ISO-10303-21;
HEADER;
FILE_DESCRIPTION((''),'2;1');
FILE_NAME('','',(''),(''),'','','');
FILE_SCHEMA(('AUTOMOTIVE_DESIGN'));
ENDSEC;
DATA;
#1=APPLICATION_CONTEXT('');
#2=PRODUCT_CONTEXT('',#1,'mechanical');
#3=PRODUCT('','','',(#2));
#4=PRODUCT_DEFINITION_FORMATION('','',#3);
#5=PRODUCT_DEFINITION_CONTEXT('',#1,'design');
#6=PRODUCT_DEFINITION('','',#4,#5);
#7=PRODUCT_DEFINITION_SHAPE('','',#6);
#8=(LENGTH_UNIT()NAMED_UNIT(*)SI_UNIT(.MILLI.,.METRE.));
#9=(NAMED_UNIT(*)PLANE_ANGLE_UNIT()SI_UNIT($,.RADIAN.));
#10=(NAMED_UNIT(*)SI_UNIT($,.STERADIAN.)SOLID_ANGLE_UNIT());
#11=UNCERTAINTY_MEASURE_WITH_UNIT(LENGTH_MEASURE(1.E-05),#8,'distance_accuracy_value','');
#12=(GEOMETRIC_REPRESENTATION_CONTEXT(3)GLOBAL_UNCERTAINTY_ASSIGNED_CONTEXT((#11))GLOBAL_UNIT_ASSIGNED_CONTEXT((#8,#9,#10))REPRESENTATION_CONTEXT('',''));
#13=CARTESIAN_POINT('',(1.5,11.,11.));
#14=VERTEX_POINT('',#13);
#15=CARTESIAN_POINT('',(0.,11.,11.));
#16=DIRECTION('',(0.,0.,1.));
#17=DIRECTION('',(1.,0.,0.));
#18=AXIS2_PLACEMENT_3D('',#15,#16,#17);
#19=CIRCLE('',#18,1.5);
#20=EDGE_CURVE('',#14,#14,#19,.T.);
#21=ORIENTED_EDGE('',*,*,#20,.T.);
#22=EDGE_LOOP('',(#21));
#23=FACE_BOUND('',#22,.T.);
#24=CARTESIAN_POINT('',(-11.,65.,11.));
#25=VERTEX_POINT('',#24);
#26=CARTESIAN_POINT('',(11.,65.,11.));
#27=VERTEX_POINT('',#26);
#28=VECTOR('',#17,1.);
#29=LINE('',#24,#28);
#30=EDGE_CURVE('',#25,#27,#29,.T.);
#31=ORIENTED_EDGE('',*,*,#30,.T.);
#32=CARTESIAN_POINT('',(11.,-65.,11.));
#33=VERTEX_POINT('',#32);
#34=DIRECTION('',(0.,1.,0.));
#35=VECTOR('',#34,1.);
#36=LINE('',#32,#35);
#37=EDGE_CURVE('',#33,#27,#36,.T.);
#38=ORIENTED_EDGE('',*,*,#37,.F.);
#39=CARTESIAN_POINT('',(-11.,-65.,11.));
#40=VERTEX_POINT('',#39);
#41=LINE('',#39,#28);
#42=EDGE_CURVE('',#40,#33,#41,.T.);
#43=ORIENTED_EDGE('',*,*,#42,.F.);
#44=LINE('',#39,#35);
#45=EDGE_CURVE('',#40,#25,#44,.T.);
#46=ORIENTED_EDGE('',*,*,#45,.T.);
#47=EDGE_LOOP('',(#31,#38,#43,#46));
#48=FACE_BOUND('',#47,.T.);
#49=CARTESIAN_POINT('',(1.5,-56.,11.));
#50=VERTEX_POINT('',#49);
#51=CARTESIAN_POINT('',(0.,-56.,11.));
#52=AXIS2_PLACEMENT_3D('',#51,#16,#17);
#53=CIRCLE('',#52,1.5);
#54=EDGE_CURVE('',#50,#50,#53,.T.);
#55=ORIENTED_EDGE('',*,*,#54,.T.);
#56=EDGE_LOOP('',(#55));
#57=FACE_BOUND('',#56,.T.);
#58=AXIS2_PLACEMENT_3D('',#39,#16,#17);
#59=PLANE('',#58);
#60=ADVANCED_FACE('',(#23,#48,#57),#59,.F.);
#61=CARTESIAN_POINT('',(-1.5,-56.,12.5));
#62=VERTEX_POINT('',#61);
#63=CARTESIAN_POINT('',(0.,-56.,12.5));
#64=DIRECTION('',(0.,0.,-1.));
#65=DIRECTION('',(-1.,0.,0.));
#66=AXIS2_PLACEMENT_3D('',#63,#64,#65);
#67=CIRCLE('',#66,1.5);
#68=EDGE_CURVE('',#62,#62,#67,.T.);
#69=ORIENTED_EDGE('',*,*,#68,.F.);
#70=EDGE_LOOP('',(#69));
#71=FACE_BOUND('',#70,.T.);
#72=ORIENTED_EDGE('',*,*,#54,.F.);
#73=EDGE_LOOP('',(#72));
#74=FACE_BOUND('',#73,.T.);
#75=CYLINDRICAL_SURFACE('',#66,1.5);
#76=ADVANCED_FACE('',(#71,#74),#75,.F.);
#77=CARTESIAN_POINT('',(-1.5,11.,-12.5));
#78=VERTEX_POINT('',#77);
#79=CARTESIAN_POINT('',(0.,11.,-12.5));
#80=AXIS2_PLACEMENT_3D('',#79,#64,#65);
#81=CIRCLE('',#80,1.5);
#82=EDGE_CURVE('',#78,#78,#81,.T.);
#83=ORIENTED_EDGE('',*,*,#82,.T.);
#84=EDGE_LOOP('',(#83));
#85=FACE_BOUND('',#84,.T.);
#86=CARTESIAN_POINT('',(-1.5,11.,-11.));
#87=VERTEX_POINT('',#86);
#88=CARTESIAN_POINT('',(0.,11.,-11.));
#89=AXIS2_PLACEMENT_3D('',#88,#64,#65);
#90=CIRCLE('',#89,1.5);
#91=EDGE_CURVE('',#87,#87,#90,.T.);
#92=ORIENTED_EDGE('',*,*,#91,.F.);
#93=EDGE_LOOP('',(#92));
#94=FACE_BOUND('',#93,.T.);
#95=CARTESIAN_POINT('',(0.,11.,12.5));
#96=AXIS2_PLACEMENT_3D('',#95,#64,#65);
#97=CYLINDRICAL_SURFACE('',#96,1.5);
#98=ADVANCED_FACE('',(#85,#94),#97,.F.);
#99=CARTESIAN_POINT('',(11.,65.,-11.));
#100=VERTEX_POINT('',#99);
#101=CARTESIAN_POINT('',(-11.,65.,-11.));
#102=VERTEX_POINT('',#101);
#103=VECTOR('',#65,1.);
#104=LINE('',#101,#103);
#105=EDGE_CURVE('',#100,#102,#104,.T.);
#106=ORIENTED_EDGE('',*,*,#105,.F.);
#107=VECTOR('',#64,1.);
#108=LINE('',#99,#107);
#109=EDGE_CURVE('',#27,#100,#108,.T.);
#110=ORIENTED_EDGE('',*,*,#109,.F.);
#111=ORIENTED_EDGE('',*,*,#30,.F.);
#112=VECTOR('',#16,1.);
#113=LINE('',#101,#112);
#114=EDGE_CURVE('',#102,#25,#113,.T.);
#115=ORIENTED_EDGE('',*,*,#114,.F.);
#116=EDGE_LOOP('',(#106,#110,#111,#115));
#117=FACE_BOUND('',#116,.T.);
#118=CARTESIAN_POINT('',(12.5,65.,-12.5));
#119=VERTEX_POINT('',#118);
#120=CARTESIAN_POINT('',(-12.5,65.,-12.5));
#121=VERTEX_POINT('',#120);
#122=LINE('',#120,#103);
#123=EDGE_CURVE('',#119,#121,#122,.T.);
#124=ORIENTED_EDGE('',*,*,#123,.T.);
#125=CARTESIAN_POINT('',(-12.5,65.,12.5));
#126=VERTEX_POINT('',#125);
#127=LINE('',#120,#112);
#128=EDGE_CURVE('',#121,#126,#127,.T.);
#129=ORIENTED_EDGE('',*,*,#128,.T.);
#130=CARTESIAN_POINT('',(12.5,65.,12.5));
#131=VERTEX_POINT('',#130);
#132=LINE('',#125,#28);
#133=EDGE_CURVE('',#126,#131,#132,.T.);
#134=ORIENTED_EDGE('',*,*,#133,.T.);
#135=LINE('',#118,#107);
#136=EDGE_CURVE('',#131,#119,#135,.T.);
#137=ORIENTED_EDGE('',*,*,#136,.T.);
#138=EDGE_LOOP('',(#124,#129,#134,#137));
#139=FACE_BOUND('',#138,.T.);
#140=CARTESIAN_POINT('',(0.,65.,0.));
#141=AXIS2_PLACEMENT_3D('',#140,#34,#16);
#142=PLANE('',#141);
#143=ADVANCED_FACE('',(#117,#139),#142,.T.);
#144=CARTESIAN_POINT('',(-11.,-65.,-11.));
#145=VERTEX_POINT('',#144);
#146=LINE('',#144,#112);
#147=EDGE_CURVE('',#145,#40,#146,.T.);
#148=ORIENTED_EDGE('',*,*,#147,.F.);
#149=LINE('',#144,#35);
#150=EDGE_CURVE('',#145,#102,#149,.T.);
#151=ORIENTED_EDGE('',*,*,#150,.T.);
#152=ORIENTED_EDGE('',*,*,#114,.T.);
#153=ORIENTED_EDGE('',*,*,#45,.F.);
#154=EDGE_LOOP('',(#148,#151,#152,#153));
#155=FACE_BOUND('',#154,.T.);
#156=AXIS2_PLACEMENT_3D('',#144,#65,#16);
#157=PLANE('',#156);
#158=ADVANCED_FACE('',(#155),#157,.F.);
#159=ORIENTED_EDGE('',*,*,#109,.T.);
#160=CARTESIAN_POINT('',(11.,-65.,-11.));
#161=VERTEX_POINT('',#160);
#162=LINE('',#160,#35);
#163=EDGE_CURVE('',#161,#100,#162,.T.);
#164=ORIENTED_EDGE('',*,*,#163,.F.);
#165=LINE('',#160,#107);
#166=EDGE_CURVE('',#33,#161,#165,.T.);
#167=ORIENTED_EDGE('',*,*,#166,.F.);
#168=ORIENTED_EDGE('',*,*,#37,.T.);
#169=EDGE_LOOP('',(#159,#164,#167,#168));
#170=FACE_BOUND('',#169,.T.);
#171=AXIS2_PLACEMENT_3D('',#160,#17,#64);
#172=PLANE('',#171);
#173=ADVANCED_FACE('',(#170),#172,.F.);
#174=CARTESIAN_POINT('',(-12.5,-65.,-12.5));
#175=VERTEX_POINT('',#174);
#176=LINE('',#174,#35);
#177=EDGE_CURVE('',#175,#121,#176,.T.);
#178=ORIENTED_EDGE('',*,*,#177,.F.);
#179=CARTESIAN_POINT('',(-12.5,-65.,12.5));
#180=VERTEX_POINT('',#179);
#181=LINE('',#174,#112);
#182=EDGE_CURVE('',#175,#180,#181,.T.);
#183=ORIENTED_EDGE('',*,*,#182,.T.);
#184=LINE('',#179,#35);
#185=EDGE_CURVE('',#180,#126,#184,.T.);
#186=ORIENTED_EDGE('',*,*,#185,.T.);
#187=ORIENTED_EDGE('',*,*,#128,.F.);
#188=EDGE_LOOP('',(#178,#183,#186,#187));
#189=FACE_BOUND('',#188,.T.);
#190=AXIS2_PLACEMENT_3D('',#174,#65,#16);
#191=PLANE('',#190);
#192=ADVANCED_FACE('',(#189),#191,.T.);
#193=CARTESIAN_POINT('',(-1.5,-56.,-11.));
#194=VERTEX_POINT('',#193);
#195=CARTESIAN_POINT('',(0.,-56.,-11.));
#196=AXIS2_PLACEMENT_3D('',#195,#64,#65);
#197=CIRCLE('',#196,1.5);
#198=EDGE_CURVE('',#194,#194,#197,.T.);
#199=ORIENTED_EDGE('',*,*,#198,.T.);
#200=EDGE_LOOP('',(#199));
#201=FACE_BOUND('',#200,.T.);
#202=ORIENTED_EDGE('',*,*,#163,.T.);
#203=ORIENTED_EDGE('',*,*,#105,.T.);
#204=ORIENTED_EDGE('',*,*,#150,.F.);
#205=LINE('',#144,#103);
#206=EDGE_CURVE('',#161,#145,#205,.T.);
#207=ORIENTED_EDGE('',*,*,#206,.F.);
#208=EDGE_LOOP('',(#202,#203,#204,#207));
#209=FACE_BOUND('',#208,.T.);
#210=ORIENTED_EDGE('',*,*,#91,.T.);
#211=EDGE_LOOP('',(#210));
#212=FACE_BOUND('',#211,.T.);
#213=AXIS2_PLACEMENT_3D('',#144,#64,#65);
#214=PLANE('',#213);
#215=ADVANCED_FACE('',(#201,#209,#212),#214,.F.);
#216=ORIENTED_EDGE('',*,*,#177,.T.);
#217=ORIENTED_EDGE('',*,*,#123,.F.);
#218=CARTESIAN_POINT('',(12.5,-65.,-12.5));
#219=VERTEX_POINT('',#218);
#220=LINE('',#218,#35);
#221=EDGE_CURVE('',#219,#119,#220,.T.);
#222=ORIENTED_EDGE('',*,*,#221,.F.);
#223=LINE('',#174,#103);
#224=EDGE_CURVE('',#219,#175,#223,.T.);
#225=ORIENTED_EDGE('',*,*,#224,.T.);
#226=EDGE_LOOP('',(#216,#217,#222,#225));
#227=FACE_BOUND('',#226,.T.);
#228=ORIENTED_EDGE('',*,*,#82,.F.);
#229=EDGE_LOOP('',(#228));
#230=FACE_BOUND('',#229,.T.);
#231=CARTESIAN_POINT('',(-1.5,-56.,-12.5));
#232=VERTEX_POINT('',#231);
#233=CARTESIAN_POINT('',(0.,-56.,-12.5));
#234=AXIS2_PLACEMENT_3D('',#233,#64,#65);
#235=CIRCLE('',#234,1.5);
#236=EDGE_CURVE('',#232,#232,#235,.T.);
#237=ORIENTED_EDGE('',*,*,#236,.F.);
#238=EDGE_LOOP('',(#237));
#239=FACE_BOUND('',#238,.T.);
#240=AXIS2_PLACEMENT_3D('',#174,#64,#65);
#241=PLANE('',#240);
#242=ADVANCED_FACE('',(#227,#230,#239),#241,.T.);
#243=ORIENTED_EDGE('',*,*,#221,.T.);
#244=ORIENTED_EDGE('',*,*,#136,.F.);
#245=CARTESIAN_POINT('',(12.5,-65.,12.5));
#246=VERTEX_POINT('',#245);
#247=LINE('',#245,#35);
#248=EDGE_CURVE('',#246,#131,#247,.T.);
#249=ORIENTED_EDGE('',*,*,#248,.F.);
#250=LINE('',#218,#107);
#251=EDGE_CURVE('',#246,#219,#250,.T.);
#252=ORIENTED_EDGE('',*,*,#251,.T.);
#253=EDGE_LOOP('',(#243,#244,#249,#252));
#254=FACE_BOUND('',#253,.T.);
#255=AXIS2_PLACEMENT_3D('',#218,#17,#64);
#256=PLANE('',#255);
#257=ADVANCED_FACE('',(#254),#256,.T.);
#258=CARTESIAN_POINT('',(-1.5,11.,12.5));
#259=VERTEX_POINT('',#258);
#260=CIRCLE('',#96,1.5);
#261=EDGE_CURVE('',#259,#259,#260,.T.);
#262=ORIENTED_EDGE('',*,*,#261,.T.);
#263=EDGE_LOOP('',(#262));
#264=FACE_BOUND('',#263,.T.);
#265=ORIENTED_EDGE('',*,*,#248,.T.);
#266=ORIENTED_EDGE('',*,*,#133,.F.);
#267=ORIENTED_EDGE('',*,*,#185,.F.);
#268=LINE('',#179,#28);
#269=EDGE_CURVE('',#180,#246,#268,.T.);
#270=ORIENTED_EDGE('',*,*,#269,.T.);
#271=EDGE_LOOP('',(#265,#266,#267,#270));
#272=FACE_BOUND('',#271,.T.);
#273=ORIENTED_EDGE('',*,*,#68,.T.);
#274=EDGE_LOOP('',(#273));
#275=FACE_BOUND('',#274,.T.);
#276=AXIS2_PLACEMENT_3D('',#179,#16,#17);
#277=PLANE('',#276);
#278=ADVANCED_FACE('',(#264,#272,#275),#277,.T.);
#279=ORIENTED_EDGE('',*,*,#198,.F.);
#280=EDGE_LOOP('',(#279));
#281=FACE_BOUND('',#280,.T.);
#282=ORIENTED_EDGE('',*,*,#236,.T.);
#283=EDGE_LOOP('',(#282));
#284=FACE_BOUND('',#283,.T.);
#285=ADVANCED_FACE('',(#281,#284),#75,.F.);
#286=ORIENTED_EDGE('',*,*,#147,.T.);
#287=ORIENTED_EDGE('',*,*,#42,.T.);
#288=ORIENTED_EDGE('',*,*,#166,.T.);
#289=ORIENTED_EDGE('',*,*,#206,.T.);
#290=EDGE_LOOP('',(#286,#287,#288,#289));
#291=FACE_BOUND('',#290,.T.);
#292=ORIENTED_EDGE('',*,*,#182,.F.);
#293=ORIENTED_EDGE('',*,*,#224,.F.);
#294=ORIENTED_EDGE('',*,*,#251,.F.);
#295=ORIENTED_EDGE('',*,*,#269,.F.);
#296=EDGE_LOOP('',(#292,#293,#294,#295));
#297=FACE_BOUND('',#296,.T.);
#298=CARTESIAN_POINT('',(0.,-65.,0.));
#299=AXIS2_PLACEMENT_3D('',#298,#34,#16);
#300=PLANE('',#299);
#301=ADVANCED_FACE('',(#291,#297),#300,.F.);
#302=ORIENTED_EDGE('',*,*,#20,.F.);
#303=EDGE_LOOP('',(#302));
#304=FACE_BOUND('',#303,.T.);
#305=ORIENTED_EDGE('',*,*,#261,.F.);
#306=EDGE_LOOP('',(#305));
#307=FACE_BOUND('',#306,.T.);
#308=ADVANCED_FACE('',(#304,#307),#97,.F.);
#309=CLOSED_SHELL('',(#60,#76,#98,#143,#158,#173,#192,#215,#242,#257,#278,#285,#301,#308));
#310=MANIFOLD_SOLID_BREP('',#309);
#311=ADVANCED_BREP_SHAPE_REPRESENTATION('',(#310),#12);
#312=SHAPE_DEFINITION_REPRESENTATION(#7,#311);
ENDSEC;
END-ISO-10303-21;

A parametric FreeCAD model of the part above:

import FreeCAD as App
import Part
import Sketcher

V = App.Vector

doc = App.newDocument("Part")
body = doc.addObject("PartDesign::Body", "Body")

sketch1 = body.newObject("Sketcher::SketchObject", "Sketch")
sketch1.AttachmentSupport = (doc.getObject("XZ_Plane"), [""])
sketch1.MapMode = "FlatFace"
sketch1.addGeometry([
    Part.LineSegment(V(-12, -12, 0), V(-12, 12, 0)),
    Part.LineSegment(V(-12, 12, 0), V(12, 12, 0)),
    Part.LineSegment(V(12, 12, 0), V(12, -12, 0)),
    Part.LineSegment(V(12, -12, 0), V(-12, -12, 0)),
    Part.LineSegment(V(11, 11, 0), V(-11, 11, 0)),
    Part.LineSegment(V(-11, 11, 0), V(-11, -11, 0)),
    Part.LineSegment(V(-11, -11, 0), V(11, -11, 0)),
    Part.LineSegment(V(11, -11, 0), V(11, 11, 0)),
], False)
sketch1.addConstraint([
    Sketcher.Constraint("Coincident", 0, 2, 1, 1),
    Sketcher.Constraint("Coincident", 1, 2, 2, 1),
    Sketcher.Constraint("Coincident", 2, 2, 3, 1),
    Sketcher.Constraint("Coincident", 3, 2, 0, 1),
    Sketcher.Constraint("Coincident", 4, 2, 5, 1),
    Sketcher.Constraint("Coincident", 5, 2, 6, 1),
    Sketcher.Constraint("Coincident", 6, 2, 7, 1),
    Sketcher.Constraint("Coincident", 7, 2, 4, 1),
    Sketcher.Constraint("Vertical", 0),
    Sketcher.Constraint("Horizontal", 1),
    Sketcher.Constraint("Vertical", 2),
    Sketcher.Constraint("Horizontal", 3),
    Sketcher.Constraint("Horizontal", 4),
    Sketcher.Constraint("Vertical", 5),
    Sketcher.Constraint("Horizontal", 6),
    Sketcher.Constraint("Vertical", 7),
    Sketcher.Constraint("Symmetric", 0, 2, 2, 2, -1, 1),
    Sketcher.Constraint("Symmetric", 4, 2, 6, 2, -1, 1),
    Sketcher.Constraint("Equal", 3, 0),
    Sketcher.Constraint("Equal", 6, 5),
    Sketcher.Constraint("DistanceX", 1, 1, 1, 2, 25.0),
    Sketcher.Constraint("DistanceX", 4, 2, 4, 1, 22.0),
])
pad1 = body.newObject("PartDesign::Pad", "Pad")
pad1.Profile = sketch1
pad1.Type = "TwoLengths"
pad1.Length = 65
pad1.Length2 = 65
pad1.Reversed = True

sketch2 = body.newObject("Sketcher::SketchObject", "Sketch001")
sketch2.AttachmentSupport = (doc.getObject("XY_Plane"), [""])
sketch2.MapMode = "FlatFace"
sketch2.AttachmentOffset = App.Placement(V(0, 0, -12.5), App.Rotation())
sketch2.addGeometry([
    Part.Circle(V(0, -56, 0), V(0, 0, 1), 1.5),
    Part.Circle(V(0, 11, 0), V(0, 0, 1), 1.5),
], False)
sketch2.addConstraint([
    Sketcher.Constraint("Equal", 0, 1),
    Sketcher.Constraint("PointOnObject", 0, 3, -2),
    Sketcher.Constraint("PointOnObject", 1, 3, -2),
    Sketcher.Constraint("Diameter", 0, 3.0),
    Sketcher.Constraint("DistanceY", 0, 3, -1, 1, 56.0),
    Sketcher.Constraint("DistanceY", -1, 1, 1, 3, 11.0),
])
pocket1 = body.newObject("PartDesign::Pocket", "Pocket")
pocket1.Profile = sketch2
pocket1.Length = 25
pocket1.Reversed = True

doc.recompute()
